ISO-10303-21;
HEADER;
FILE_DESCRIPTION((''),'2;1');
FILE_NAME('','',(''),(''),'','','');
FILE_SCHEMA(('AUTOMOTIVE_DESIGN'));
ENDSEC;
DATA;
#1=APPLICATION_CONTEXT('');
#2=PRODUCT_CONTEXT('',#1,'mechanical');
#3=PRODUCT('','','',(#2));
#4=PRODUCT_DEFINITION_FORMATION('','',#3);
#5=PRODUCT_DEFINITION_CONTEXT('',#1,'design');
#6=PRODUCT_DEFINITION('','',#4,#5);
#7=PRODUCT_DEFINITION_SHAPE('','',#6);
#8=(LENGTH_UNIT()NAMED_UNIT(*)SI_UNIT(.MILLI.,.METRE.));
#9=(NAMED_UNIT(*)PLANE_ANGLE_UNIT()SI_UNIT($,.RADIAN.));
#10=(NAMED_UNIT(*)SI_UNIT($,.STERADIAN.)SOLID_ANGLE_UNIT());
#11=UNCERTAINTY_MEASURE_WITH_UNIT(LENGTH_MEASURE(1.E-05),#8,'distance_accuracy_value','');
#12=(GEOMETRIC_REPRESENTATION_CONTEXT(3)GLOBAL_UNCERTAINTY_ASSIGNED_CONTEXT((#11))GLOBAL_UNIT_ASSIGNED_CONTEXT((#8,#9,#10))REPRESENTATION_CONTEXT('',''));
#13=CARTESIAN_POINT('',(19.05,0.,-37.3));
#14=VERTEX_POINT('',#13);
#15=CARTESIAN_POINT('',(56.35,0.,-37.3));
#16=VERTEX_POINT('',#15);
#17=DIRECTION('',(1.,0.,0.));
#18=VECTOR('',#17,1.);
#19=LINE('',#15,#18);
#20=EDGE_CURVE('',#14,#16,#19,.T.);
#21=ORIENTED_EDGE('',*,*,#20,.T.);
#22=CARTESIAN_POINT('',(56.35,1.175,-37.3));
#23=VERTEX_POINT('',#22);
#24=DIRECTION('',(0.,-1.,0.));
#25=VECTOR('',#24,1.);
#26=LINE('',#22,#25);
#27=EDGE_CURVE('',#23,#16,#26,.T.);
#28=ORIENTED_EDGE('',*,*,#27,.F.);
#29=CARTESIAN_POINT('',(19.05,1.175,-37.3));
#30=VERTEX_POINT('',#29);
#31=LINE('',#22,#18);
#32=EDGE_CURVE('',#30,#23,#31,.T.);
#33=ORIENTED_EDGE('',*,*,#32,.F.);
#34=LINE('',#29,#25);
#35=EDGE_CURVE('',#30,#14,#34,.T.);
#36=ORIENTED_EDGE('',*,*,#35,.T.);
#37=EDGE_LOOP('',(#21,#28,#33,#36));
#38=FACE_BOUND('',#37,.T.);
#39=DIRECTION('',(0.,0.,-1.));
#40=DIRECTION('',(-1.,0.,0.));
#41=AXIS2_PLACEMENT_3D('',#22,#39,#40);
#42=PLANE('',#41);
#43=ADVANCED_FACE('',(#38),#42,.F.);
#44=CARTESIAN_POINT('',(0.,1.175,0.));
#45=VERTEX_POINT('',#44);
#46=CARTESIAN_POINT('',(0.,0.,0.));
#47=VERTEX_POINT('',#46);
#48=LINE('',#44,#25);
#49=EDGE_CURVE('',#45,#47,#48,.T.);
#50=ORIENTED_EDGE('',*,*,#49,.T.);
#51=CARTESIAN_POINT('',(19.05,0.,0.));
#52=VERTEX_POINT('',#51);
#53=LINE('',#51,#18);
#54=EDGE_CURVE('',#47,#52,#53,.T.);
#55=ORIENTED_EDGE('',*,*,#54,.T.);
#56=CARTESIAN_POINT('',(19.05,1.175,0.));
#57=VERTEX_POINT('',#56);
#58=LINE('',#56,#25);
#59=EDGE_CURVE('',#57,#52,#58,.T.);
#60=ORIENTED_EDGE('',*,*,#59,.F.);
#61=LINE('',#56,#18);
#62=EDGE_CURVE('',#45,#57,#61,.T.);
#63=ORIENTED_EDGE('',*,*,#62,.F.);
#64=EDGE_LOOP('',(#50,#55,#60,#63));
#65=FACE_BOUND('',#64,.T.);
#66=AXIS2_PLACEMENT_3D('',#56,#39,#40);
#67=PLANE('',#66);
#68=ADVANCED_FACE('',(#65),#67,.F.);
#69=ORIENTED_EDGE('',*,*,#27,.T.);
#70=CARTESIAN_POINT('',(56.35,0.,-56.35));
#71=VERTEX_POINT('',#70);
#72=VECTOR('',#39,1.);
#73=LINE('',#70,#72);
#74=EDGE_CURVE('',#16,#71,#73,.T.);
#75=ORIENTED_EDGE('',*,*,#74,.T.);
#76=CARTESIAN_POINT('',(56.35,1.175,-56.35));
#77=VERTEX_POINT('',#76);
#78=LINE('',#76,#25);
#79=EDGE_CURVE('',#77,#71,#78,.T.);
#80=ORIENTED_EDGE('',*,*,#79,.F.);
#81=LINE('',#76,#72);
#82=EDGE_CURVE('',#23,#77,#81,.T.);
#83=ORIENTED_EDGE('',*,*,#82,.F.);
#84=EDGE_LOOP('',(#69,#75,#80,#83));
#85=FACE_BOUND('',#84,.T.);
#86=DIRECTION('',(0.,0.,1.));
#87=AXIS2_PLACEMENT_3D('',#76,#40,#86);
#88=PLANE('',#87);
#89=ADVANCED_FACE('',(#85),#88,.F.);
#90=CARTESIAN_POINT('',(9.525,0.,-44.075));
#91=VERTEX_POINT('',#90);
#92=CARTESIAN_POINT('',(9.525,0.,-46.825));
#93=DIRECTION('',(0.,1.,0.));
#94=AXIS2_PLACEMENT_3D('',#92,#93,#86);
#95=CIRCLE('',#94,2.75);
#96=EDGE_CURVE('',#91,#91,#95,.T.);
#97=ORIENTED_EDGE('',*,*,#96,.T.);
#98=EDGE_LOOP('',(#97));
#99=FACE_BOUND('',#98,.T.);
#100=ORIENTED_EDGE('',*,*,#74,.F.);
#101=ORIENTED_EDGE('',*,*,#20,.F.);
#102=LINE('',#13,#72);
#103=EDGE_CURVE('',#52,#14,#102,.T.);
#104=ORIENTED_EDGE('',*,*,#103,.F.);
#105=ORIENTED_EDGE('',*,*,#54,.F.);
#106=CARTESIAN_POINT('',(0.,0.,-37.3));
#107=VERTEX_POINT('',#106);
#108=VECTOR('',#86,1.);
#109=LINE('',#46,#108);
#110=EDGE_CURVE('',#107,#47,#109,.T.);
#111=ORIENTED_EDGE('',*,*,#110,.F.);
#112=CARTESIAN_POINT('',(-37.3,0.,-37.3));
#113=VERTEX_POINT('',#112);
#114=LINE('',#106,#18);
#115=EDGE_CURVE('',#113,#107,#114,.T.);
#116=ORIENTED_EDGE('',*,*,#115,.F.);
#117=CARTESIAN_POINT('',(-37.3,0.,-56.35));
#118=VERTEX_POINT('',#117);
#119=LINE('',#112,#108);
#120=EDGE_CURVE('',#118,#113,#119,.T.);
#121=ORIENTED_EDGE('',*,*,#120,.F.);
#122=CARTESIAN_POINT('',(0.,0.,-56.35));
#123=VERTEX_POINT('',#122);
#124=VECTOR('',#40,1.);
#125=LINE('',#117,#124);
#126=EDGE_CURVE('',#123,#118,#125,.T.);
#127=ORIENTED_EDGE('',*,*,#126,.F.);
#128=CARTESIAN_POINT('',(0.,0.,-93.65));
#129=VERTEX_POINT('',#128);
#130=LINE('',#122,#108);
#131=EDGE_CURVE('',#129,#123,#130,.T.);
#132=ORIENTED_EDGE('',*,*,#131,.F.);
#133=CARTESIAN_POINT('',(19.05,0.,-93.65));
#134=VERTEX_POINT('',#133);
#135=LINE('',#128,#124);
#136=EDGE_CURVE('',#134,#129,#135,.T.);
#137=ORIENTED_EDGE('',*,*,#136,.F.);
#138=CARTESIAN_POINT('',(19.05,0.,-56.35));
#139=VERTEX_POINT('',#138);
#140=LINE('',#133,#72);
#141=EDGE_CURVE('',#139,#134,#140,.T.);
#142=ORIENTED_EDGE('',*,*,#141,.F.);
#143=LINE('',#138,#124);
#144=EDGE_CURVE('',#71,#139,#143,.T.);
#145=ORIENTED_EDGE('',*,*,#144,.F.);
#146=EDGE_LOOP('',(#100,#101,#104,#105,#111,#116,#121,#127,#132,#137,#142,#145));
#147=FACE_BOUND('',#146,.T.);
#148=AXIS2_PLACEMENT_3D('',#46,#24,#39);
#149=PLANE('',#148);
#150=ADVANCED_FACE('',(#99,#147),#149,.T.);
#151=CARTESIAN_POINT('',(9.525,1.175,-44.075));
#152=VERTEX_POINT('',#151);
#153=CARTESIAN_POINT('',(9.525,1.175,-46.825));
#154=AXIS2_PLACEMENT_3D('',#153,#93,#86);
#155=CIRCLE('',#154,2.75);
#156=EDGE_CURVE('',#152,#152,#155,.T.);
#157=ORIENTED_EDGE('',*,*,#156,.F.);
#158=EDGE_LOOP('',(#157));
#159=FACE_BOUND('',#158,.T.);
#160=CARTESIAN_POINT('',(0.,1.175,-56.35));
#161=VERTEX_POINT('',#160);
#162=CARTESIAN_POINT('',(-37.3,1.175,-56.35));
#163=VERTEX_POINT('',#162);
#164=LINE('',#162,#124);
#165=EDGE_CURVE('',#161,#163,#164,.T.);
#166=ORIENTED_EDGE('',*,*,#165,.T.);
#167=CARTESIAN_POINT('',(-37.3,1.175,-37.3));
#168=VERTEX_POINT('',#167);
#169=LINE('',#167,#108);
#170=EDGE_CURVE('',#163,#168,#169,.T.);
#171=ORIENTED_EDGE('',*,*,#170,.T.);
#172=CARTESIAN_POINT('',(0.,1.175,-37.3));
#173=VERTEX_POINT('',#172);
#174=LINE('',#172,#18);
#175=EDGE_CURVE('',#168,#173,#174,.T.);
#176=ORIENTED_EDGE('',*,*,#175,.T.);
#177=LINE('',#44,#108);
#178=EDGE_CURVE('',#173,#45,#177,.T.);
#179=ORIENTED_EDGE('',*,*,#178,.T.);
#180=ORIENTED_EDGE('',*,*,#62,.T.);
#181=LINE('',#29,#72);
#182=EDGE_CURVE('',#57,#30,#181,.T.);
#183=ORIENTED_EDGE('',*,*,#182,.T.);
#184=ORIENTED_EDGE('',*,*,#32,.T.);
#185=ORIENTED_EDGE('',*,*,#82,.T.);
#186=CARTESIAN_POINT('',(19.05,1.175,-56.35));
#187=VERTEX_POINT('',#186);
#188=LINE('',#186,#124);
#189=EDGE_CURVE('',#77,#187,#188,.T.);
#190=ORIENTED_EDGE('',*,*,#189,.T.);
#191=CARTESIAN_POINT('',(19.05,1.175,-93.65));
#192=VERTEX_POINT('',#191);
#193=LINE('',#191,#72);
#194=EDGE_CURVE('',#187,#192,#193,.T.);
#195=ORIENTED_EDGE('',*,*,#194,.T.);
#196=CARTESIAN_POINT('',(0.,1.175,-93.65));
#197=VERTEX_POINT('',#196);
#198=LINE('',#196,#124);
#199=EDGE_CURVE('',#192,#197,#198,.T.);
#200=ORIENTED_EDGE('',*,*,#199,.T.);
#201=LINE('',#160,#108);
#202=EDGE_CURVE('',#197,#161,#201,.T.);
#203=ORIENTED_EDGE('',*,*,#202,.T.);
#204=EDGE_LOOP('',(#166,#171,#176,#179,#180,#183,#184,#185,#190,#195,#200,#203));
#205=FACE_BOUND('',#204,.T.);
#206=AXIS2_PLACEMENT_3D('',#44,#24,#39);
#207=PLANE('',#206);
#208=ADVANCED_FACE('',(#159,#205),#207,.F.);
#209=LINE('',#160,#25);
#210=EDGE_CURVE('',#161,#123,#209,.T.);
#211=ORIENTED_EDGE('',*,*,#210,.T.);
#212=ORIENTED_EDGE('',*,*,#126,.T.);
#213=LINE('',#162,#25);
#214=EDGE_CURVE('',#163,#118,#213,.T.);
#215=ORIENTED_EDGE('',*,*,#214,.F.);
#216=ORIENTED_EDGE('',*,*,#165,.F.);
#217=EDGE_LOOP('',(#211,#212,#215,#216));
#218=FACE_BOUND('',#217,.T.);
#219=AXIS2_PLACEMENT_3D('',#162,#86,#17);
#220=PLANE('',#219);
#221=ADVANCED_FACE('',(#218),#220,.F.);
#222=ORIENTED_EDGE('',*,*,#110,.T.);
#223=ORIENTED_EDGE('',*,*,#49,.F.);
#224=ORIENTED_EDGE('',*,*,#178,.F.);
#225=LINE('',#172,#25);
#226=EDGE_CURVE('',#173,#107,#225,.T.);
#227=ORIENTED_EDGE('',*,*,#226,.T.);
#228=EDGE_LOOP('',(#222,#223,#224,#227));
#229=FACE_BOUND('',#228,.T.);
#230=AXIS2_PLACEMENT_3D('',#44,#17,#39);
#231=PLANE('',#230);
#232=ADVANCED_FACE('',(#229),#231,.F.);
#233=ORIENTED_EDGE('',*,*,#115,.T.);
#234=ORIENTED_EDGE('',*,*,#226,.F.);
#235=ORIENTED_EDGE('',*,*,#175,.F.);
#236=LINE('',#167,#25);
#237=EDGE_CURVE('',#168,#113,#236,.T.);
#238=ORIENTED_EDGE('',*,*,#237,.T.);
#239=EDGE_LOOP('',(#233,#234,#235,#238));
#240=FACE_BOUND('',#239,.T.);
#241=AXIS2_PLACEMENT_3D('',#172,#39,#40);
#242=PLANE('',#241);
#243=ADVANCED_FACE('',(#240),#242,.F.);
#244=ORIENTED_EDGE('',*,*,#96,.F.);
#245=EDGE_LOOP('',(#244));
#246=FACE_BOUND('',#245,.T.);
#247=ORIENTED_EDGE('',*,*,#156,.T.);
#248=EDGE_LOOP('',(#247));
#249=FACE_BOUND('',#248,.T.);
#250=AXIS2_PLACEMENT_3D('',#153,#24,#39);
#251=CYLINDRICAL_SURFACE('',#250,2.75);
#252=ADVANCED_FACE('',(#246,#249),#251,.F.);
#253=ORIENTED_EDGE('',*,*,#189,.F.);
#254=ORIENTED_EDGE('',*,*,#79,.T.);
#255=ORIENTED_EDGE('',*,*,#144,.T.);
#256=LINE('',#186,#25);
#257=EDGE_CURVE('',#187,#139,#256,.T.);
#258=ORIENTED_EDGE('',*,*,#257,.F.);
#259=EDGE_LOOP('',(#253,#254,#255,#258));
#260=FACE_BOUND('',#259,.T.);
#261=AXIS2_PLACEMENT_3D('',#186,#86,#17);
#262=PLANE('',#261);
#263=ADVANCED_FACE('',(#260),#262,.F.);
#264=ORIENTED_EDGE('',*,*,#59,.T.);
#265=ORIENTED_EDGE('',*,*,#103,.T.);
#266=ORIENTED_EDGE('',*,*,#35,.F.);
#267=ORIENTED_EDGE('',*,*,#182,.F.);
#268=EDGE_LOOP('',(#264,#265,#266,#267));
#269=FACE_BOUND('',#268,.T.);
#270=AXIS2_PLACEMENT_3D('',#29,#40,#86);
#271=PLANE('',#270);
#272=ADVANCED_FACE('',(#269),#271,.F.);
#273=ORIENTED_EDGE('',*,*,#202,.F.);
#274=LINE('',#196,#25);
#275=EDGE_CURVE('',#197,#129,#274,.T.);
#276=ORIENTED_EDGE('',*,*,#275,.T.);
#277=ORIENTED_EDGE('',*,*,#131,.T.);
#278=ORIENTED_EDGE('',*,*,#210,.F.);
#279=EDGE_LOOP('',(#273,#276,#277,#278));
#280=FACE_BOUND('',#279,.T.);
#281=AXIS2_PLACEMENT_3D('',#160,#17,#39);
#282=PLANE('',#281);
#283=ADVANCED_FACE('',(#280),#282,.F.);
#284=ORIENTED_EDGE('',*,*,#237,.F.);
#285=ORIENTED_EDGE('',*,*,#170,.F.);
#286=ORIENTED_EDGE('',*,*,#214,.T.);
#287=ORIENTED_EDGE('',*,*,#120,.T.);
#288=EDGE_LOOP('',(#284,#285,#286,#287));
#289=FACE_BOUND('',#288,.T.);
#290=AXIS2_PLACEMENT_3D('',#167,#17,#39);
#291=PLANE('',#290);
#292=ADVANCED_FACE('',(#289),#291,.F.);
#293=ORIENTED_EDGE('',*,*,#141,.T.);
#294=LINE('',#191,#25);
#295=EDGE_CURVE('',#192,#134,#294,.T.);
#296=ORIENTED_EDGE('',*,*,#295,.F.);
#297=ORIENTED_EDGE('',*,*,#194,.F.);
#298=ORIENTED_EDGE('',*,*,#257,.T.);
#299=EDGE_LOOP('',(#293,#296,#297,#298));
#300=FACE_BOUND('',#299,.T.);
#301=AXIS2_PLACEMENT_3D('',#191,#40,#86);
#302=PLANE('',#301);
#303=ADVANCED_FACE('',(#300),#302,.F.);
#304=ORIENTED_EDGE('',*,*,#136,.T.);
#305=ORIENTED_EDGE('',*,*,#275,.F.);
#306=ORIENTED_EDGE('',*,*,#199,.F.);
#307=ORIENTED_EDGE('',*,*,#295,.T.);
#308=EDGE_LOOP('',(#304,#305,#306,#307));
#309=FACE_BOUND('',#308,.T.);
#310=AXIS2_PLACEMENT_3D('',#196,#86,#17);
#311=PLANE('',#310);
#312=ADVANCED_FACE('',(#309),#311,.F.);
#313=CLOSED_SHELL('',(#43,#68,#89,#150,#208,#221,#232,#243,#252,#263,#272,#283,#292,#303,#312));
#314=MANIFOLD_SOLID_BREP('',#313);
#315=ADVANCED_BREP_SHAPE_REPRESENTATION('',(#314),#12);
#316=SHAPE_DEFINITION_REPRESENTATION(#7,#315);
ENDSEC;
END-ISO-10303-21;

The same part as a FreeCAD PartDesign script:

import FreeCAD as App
import Part
import Sketcher
from FreeCAD import Vector


def add_polygon(sketch, points):
    """Adds a closed chain of lines whose ends are joined by coincident constraints."""
    first, n = sketch.GeometryCount, len(points)
    for a, b in zip(points, points[1:] + points[:1]):
        sketch.addGeometry(Part.LineSegment(App.Vector(*a, 0), App.Vector(*b, 0)), False)
    for i in range(n):
        sketch.addConstraint(Sketcher.Constraint("Coincident", first + i, 2, first + (i + 1) % n, 1))

doc = App.newDocument("Part")
body = doc.addObject("PartDesign::Body", "Body")

# Sketch on XZ plane
sketch1 = body.newObject("Sketcher::SketchObject", "Sketch")
sketch1.AttachmentSupport = (doc.getObject("XZ_Plane"), [""])
sketch1.MapMode = "FlatFace"
add_polygon(sketch1, [(0, -37.3), (0, 0), (19.05, 0), (19.05, -37.3), (56.35, -37.3), (56.35, -56.35), (19.05, -56.35), (19.05, -93.65), (0, -93.65), (0, -56.35), (-37.3, -56.35), (-37.3, -37.3)])  # lines 0-11
sketch1.addGeometry(Part.Circle(Vector(9.525, -46.825, 0), Vector(0, 0, 1), 2.75), False)  # 12
sketch1.addConstraint(Sketcher.Constraint("Vertical", 0))
sketch1.addConstraint(Sketcher.Constraint("Horizontal", 1))
sketch1.addConstraint(Sketcher.Constraint("Vertical", 2))
sketch1.addConstraint(Sketcher.Constraint("Horizontal", 3))
sketch1.addConstraint(Sketcher.Constraint("Vertical", 4))
sketch1.addConstraint(Sketcher.Constraint("Horizontal", 5))
sketch1.addConstraint(Sketcher.Constraint("Vertical", 6))
sketch1.addConstraint(Sketcher.Constraint("Horizontal", 7))
sketch1.addConstraint(Sketcher.Constraint("Vertical", 8))
sketch1.addConstraint(Sketcher.Constraint("Horizontal", 9))
sketch1.addConstraint(Sketcher.Constraint("Vertical", 10))
sketch1.addConstraint(Sketcher.Constraint("Horizontal", 11))
sketch1.addConstraint(Sketcher.Constraint("Coincident", 0, 2, -1, 1))
sketch1.addConstraint(Sketcher.Constraint("PointOnObject", 7, 2, -2))
sketch1.addConstraint(Sketcher.Constraint("Horizontal", 5, 2, 8, 2))
sketch1.addConstraint(Sketcher.Constraint("Horizontal", 3, 2, 10, 2))
sketch1.addConstraint(Sketcher.Constraint("Vertical", 2, 2, 5, 2))
sketch1.addConstraint(Sketcher.Constraint("Equal", 5, 9))
sketch1.addConstraint(Sketcher.Constraint("Equal", 11, 0))
sketch1.addConstraint(Sketcher.Constraint("Equal", 7, 4))
sketch1.addConstraint(Sketcher.Constraint("Equal", 2, 6))
sketch1.addConstraint(Sketcher.Constraint("Diameter", 12, 5.5))
sketch1.addConstraint(Sketcher.Constraint("DistanceX", 3, 1, 3, 2, 37.3))
sketch1.addConstraint(Sketcher.Constraint("DistanceX", 1, 1, 1, 2, 19.05))
sketch1.addConstraint(Sketcher.Constraint("DistanceX", -1, 1, 12, 3, 9.525))
sketch1.addConstraint(Sketcher.Constraint("DistanceY", 12, 3, -1, 1, 46.825))
pad1 = body.newObject("PartDesign::Pad", "Pad")
pad1.Profile = sketch1
pad1.Length = 1.175
pad1.Reversed = True

doc.recompute()
